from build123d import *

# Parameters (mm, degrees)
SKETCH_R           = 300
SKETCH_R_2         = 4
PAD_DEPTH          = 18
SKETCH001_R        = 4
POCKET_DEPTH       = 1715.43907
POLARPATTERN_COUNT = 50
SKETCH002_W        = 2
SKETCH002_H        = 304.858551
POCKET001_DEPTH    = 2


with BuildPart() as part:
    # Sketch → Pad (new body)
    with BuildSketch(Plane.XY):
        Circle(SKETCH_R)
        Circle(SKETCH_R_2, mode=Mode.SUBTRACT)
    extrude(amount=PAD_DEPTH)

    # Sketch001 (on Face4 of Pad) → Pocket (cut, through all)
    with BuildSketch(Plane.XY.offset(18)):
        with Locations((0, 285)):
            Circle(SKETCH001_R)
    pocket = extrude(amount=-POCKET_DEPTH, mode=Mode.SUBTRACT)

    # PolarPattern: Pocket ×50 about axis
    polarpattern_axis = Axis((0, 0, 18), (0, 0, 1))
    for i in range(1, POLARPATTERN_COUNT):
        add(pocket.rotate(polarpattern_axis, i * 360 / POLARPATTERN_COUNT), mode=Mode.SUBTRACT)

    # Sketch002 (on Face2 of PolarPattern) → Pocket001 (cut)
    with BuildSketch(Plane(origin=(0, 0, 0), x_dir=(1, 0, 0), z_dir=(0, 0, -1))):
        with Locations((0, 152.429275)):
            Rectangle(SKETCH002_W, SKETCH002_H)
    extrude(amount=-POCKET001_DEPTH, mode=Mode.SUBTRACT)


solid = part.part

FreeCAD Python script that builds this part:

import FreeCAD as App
import Part
import Sketcher

doc = App.newDocument("Part")
params = doc.addObject("Spreadsheet::Sheet", "Params")
for row, (alias, value) in enumerate([
    ("sketch1_diameter", "600 mm"),
    ("sketch1_diameter2", "8 mm"),
    ("pad1_length", "18 mm"),
    ("sketch2_diameter", "8 mm"),
    ("sketch3_width", "2 mm"),
    ("pocket2_length", "2 mm"),
], start=1):
    params.set(f"A{row}", alias)
    params.set(f"B{row}", "=" + value)
    params.setAlias(f"B{row}", alias)

body = doc.addObject("PartDesign::Body", "Body")

sketch1 = body.newObject("Sketcher::SketchObject", "Sketch")
sketch1.AttachmentSupport = (doc.getObject("XY_Plane"), [""])
sketch1.MapMode = "FlatFace"
sketch1.addGeometry(Part.Circle(App.Vector(0, 0, 0), App.Vector(0, 0, 1), 300), False)
sketch1.addGeometry(Part.Circle(App.Vector(0, 0, 0), App.Vector(0, 0, 1), 4), False)
sketch1.addConstraint(Sketcher.Constraint("Coincident", 0, 3, -1, 1))
sketch1.addConstraint(Sketcher.Constraint("Coincident", 1, 3, -1, 1))
sketch1.addConstraint(Sketcher.Constraint("Diameter", 0, 600.0))
sketch1.addConstraint(Sketcher.Constraint("Diameter", 1, 8.0))
sketch1.setExpression("Constraints[2]", "Params.sketch1_diameter")
sketch1.setExpression("Constraints[3]", "Params.sketch1_diameter2")
pad1 = body.newObject("PartDesign::Pad", "Pad")
pad1.Profile = sketch1
pad1.setExpression("Length", "Params.pad1_length")

sketch2 = body.newObject("Sketcher::SketchObject", "Sketch001")
sketch2.AttachmentSupport = (doc.getObject("XY_Plane"), [""])
sketch2.MapMode = "FlatFace"
sketch2.AttachmentOffset = App.Placement(App.Vector(0, 0, 18), App.Rotation())
sketch2.addGeometry(Part.Circle(App.Vector(0, 285, 0), App.Vector(0, 0, 1), 4), False)
sketch2.addConstraint(Sketcher.Constraint("PointOnObject", 0, 3, -2))
sketch2.addConstraint(Sketcher.Constraint("Diameter", 0, 8.0))
sketch2.addConstraint(Sketcher.Constraint("DistanceY", -1, 1, 0, 3, 285.0))
sketch2.setExpression("Constraints[1]", "Params.sketch2_diameter")
pocket1 = body.newObject("PartDesign::Pocket", "Pocket")
pocket1.Profile = sketch2
pocket1.Type = "ThroughAll"
doc.recompute()

polarpattern = body.newObject("PartDesign::PolarPattern", "PolarPattern")
polarpattern.Originals = [pocket1]
polarpattern.Axis = (doc.getObject("Z_Axis"), [""])
polarpattern.Angle = 360
polarpattern.Occurrences = 50
body.Tip = polarpattern

sketch3 = body.newObject("Sketcher::SketchObject", "Sketch002")
sketch3.AttachmentSupport = (doc.getObject("XY_Plane"), [""])
sketch3.MapMode = "FlatFace"
sketch3.addGeometry(Part.LineSegment(App.Vector(-1, -304.9, 0), App.Vector(-1, 0, 0)), False)
sketch3.addGeometry(Part.LineSegment(App.Vector(-1, 0, 0), App.Vector(1, 0, 0)), False)
sketch3.addGeometry(Part.LineSegment(App.Vector(1, 0, 0), App.Vector(1, -304.9, 0)), False)
sketch3.addGeometry(Part.LineSegment(App.Vector(1, -304.9, 0), App.Vector(-1, -304.9, 0)), False)
sketch3.addConstraint(Sketcher.Constraint("Coincident", 0, 2, 1, 1))
sketch3.addConstraint(Sketcher.Constraint("Coincident", 1, 2, 2, 1))
sketch3.addConstraint(Sketcher.Constraint("Coincident", 2, 2, 3, 1))
sketch3.addConstraint(Sketcher.Constraint("Coincident", 3, 2, 0, 1))
sketch3.addConstraint(Sketcher.Constraint("Vertical", 0))
sketch3.addConstraint(Sketcher.Constraint("Horizontal", 1))
sketch3.addConstraint(Sketcher.Constraint("Vertical", 2))
sketch3.addConstraint(Sketcher.Constraint("Horizontal", 3))
sketch3.addConstraint(Sketcher.Constraint("Symmetric", 0, 2, 1, 2, -1, 1))
sketch3.addConstraint(Sketcher.Constraint("DistanceX", 1, 1, 1, 2, 2.0))
sketch3.addConstraint(Sketcher.Constraint("DistanceY", 0, 1, 0, 2, 304.858551))
sketch3.setExpression("Constraints[9]", "Params.sketch3_width")
pocket2 = body.newObject("PartDesign::Pocket", "Pocket001")
pocket2.Profile = sketch3
pocket2.setExpression("Length", "Params.pocket2_length")
pocket2.Reversed = True

doc.recompute()
